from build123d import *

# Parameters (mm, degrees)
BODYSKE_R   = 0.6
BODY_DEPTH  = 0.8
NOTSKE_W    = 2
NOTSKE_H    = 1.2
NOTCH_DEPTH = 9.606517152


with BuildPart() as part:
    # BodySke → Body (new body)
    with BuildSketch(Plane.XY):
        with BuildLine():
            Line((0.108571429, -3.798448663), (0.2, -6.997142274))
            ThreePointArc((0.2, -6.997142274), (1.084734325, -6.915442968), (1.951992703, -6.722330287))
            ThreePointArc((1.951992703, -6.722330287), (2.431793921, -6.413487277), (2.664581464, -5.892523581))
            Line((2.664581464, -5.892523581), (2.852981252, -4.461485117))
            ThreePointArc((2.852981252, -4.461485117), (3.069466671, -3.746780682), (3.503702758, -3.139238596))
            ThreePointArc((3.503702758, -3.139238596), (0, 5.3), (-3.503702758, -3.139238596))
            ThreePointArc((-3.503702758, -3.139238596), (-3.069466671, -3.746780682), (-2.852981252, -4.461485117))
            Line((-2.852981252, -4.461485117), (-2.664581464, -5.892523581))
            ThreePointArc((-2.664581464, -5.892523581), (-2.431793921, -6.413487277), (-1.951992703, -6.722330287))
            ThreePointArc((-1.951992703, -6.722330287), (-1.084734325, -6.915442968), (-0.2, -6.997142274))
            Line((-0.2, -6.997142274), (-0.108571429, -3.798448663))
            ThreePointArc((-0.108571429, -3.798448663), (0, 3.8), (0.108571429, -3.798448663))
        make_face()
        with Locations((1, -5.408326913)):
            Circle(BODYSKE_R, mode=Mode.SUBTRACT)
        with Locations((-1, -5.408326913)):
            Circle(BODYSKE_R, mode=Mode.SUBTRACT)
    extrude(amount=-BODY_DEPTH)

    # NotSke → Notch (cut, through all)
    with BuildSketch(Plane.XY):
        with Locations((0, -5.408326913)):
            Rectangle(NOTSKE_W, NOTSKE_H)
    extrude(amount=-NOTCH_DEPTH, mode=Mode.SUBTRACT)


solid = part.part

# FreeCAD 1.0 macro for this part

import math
import FreeCAD as App
import Part
import Sketcher

V = App.Vector
Q = App.Units.Quantity

doc = App.newDocument("Part")
params = doc.addObject("Spreadsheet::Sheet", "Params")
for row, (alias, value) in enumerate([
    ("sketch1_radius", "7 mm"),
    ("sketch1_radius2", "1 mm"),
    ("sketch1_diameter", "1.2 mm"),
    ("sketch1_radius3", "3.8 mm"),
    ("pad1_length", "0.8 mm"),
    ("sketch2_width", "2 mm"),
    ("sketch2_height", "1.2 mm"),
], start=1):
    params.set(f"A{row}", alias)
    params.set(f"B{row}", "=" + value)
    params.setAlias(f"B{row}", alias)

body = doc.addObject("PartDesign::Body", "Body")

sketch1 = doc.addObject("Sketcher::SketchObject", "Sketch")
body.addObject(sketch1)
sketch1.AttachmentSupport = (doc.XY_Plane, [""])
sketch1.MapMode = "FlatFace"
sketch1.addGeometry(Part.LineSegment(V(0.11, -3.8, 0), V(0.2, -7, 0)), False)
sketch1.addGeometry(Part.ArcOfCircle(Part.Circle(V(0, 0, 0), V(0, 0, 1), 7), math.radians(-88.36), math.radians(-73.81)), False)
sketch1.addGeometry(Part.ArcOfCircle(Part.Circle(V(1.67, -5.76, 0), V(0, 0, 1), 1), math.radians(-74), math.radians(-7)), False)
sketch1.addGeometry(Part.LineSegment(V(2.66, -5.89, 0), V(2.85, -4.46, 0)), False)
sketch1.addGeometry(Part.ArcOfCircle(Part.Circle(V(5.13, -4.76, 0), V(0, 0, 1), 2.3), math.radians(135), math.radians(172)), False)
sketch1.addGeometry(Part.ArcOfCircle(Part.Circle(V(0, 0.35, 0), V(0, 0, 1), 4.95), math.radians(-45), math.radians(225)), False)
sketch1.addGeometry(Part.ArcOfCircle(Part.Circle(V(-5.13, -4.76, 0), V(0, 0, 1), 2.3), math.radians(8), math.radians(45)), False)
sketch1.addGeometry(Part.LineSegment(V(-2.85, -4.46, 0), V(-2.66, -5.89, 0)), False)
sketch1.addGeometry(Part.ArcOfCircle(Part.Circle(V(-1.67, -5.76, 0), V(0, 0, 1), 1), math.radians(-173), math.radians(-106)), False)
sketch1.addGeometry(Part.ArcOfCircle(Part.Circle(V(0, 0, 0), V(0, 0, 1), 7), math.radians(-106.19), math.radians(-91.64)), False)
sketch1.addGeometry(Part.LineSegment(V(-0.2, -7, 0), V(-0.11, -3.8, 0)), False)
sketch1.addGeometry(Part.ArcOfCircle(Part.Circle(V(0, 0, 0), V(0, 0, 1), 3.8), math.radians(-88), math.radians(268)), False)
sketch1.addGeometry(Part.Circle(V(-1, -5.41, 0), V(0, 0, 1), 0.6), False)
sketch1.addGeometry(Part.Circle(V(1, -5.41, 0), V(0, 0, 1), 0.6), False)
sketch1.addConstraint(Sketcher.Constraint("Coincident", 0, 2, 1, 1))
sketch1.addConstraint(Sketcher.Constraint("Tangent", 1, 2, 2, 1))
sketch1.addConstraint(Sketcher.Constraint("Tangent", 2, 2, 3, 1))
sketch1.addConstraint(Sketcher.Constraint("Tangent", 3, 2, 4, 2))
sketch1.addConstraint(Sketcher.Constraint("Tangent", 4, 1, 5, 1))
sketch1.addConstraint(Sketcher.Constraint("Tangent", 5, 2, 6, 2))
sketch1.addConstraint(Sketcher.Constraint("Tangent", 6, 1, 7, 1))
sketch1.addConstraint(Sketcher.Constraint("Tangent", 7, 2, 8, 1))
sketch1.addConstraint(Sketcher.Constraint("Tangent", 8, 2, 9, 1))
sketch1.addConstraint(Sketcher.Constraint("Coincident", 9, 2, 10, 1))
sketch1.addConstraint(Sketcher.Constraint("Coincident", 10, 2, 11, 2))
sketch1.addConstraint(Sketcher.Constraint("Coincident", 11, 1, 0, 1))
sketch1.addConstraint(Sketcher.Constraint("Coincident", 1, 3, -1, 1))
sketch1.addConstraint(Sketcher.Constraint("Coincident", 9, 3, -1, 1))
sketch1.addConstraint(Sketcher.Constraint("Coincident", 11, 3, -1, 1))
sketch1.addConstraint(Sketcher.Constraint("Equal", 4, 6))
sketch1.addConstraint(Sketcher.Constraint("Equal", 2, 8))
sketch1.addConstraint(Sketcher.Constraint("Equal", 1, 9))
sketch1.addConstraint(Sketcher.Constraint("Equal", 12, 13))
sketch1.addConstraint(Sketcher.Constraint("Symmetric", 4, 3, 6, 3, -2))
sketch1.addConstraint(Sketcher.Constraint("Symmetric", 12, 3, 13, 3, -2))
sketch1.addConstraint(Sketcher.Constraint("Horizontal", 2, 3, 8, 3))
sketch1.addConstraint(Sketcher.Constraint("Horizontal", 0, 2, 9, 2))
sketch1.addConstraint(Sketcher.Constraint("Horizontal", 10, 2, 11, 1))
sketch1.addConstraint(Sketcher.Constraint("Radius", 1, Q("7 mm")))
sketch1.addConstraint(Sketcher.Constraint("Radius", 2, Q("1 mm")))
sketch1.addConstraint(Sketcher.Constraint("Diameter", 12, Q("1.2 mm")))
sketch1.addConstraint(Sketcher.Constraint("Radius", 11, Q("3.8 mm")))
sketch1.addConstraint(Sketcher.Constraint("DistanceX", 12, 3, -1, 1, Q("1 mm")))
sketch1.addConstraint(Sketcher.Constraint("Angle", 3, Q("82.5 deg")))
sketch1.addConstraint(Sketcher.Constraint("DistanceX", -1, 1, 0, 2, Q("0.2 mm")))
sketch1.addConstraint(Sketcher.Constraint("Radius", 4, Q("2.29785 mm")))
sketch1.addConstraint(Sketcher.Constraint("Radius", 5, Q("4.946932 mm")))
sketch1.addConstraint(Sketcher.Constraint("DistanceX", 2, 2, 3, 2, Q("0.1884 mm")))
sketch1.addConstraint(Sketcher.Constraint("DistanceY", 1, 2, -1, 1, Q("6.72233 mm")))
sketch1.addConstraint(Sketcher.Constraint("DistanceX", 10, 2, -1, 1, Q("0.108571 mm")))
sketch1.addConstraint(Sketcher.Constraint("DistanceY", 8, 3, 12, 3, Q("0.35367 mm")))
sketch1.setExpression("Constraints[24]", "Params.sketch1_radius")
sketch1.setExpression("Constraints[25]", "Params.sketch1_radius2")
sketch1.setExpression("Constraints[26]", "Params.sketch1_diameter")
sketch1.setExpression("Constraints[27]", "Params.sketch1_radius3")
pad1 = doc.addObject("PartDesign::Pad", "Pad")
body.addObject(pad1)
pad1.Profile = sketch1
pad1.setExpression("Length", "Params.pad1_length")
pad1.Reversed = True

sketch2 = doc.addObject("Sketcher::SketchObject", "Sketch001")
body.addObject(sketch2)
sketch2.AttachmentSupport = (doc.XY_Plane, [""])
sketch2.MapMode = "FlatFace"
sketch2.addGeometry(Part.LineSegment(V(-1, -4.8, 0), V(-1, -6, 0)), False)
sketch2.addGeometry(Part.LineSegment(V(-1, -6, 0), V(1, -6, 0)), False)
sketch2.addGeometry(Part.LineSegment(V(1, -6, 0), V(1, -4.8, 0)), False)
sketch2.addGeometry(Part.LineSegment(V(1, -4.8, 0), V(-1, -4.8, 0)), False)
sketch2.addConstraint(Sketcher.Constraint("Coincident", 0, 2, 1, 1))
sketch2.addConstraint(Sketcher.Constraint("Coincident", 1, 2, 2, 1))
sketch2.addConstraint(Sketcher.Constraint("Coincident", 2, 2, 3, 1))
sketch2.addConstraint(Sketcher.Constraint("Coincident", 3, 2, 0, 1))
sketch2.addConstraint(Sketcher.Constraint("Vertical", 0))
sketch2.addConstraint(Sketcher.Constraint("Horizontal", 1))
sketch2.addConstraint(Sketcher.Constraint("Vertical", 2))
sketch2.addConstraint(Sketcher.Constraint("Horizontal", 3))
sketch2.addConstraint(Sketcher.Constraint("DistanceX", 1, 1, 1, 2, Q("2 mm")))
sketch2.addConstraint(Sketcher.Constraint("DistanceY", 0, 2, 0, 1, Q("1.2 mm")))
sketch2.addConstraint(Sketcher.Constraint("DistanceX", 0, 2, -1, 1, Q("1 mm")))
sketch2.addConstraint(Sketcher.Constraint("DistanceY", 0, 2, -1, 1, Q("6.008327 mm")))
sketch2.setExpression("Constraints[8]", "Params.sketch2_width")
sketch2.setExpression("Constraints[9]", "Params.sketch2_height")
pocket1 = doc.addObject("PartDesign::Pocket", "Pocket")
body.addObject(pocket1)
pocket1.Profile = sketch2
pocket1.Type = "ThroughAll"

doc.recompute()
